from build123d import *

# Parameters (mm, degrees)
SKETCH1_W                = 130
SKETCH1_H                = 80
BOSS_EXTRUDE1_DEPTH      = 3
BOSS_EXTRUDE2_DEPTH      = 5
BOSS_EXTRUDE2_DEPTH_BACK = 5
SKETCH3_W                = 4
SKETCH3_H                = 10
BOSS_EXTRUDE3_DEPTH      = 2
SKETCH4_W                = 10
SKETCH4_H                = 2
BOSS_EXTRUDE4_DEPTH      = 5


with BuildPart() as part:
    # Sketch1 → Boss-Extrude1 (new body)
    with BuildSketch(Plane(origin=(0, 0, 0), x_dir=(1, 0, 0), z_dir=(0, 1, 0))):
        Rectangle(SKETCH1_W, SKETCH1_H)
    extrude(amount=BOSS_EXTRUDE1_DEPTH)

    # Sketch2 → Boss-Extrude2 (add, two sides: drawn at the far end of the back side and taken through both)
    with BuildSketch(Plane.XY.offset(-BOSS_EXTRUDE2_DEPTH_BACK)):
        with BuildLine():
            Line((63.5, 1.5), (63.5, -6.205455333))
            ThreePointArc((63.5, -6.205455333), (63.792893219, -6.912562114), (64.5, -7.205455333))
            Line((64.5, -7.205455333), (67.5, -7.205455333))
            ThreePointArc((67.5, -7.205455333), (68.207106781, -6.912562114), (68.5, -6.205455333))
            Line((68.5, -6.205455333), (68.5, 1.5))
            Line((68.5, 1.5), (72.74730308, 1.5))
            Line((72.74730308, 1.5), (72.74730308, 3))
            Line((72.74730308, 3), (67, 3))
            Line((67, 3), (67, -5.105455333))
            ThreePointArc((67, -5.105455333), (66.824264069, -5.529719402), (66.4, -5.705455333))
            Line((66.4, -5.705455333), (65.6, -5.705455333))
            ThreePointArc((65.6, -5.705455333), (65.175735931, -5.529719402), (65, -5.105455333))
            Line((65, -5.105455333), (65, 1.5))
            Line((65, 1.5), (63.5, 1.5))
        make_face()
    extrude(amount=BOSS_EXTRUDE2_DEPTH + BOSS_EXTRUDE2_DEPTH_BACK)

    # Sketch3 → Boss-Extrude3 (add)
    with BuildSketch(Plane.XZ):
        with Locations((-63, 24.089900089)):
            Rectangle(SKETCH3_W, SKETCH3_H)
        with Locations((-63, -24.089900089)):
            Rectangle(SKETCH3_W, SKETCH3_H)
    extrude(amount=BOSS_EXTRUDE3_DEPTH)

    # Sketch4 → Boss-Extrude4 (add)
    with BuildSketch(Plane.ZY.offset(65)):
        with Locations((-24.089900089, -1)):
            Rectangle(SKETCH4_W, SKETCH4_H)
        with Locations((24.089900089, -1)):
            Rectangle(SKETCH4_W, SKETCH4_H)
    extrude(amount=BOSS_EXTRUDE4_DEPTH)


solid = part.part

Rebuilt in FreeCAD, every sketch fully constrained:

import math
import FreeCAD as App
import Part
import Sketcher


def add_polygon(sketch, points):
    """Adds a closed chain of lines whose ends are joined by coincident constraints."""
    first, n = sketch.GeometryCount, len(points)
    for a, b in zip(points, points[1:] + points[:1]):
        sketch.addGeometry(Part.LineSegment(App.Vector(*a, 0), App.Vector(*b, 0)), False)
    for i in range(n):
        sketch.addConstraint(Sketcher.Constraint("Coincident", first + i, 2, first + (i + 1) % n, 1))

doc = App.newDocument("Part")
params = doc.addObject("Spreadsheet::Sheet", "Params")
for row, (alias, value) in enumerate([
    ("sketch1_width", "130 mm"),
    ("sketch1_height", "80 mm"),
    ("pad1_length", "3 mm"),
    ("sketch2_radius", "1 mm"),
    ("sketch2_radius2", "0.6 mm"),
    ("sketch2_width", "3 mm"),
    ("sketch2_width2", "0.8 mm"),
    ("sketch2_width3", "1.5 mm"),
    ("pad2_length", "5 mm"),
    ("pad2_length2", "5 mm"),
    ("sketch3_width", "4 mm"),
    ("sketch3_height", "10 mm"),
    ("pad3_length", "2 mm"),
    ("sketch4_width", "2 mm"),
    ("sketch4_height", "10 mm"),
    ("pad4_length", "5 mm"),
], start=1):
    params.set(f"A{row}", alias)
    params.set(f"B{row}", "=" + value)
    params.setAlias(f"B{row}", alias)

body = doc.addObject("PartDesign::Body", "Body")

sketch1 = body.newObject("Sketcher::SketchObject", "Sketch")
sketch1.AttachmentSupport = (doc.getObject("XZ_Plane"), [""])
sketch1.MapMode = "FlatFace"
add_polygon(sketch1, [(-65, -40), (-65, 40), (65, 40), (65, -40)])
sketch1.addConstraint([
    Sketcher.Constraint("Vertical", 0),
    Sketcher.Constraint("Horizontal", 1),
    Sketcher.Constraint("Vertical", 2),
    Sketcher.Constraint("Horizontal", 3),
    Sketcher.Constraint("Symmetric", 0, 2, 2, 2, -1, 1),
    Sketcher.Constraint("DistanceX", 1, 1, 1, 2, 130.0),
    Sketcher.Constraint("DistanceY", 0, 1, 0, 2, 80.0),
])
sketch1.setExpression("Constraints[9]", "Params.sketch1_width")
sketch1.setExpression("Constraints[10]", "Params.sketch1_height")
pad1 = body.newObject("PartDesign::Pad", "Pad")
pad1.Profile = sketch1
pad1.setExpression("Length", "Params.pad1_length")
pad1.Reversed = True

sketch2 = body.newObject("Sketcher::SketchObject", "Sketch001")
sketch2.AttachmentSupport = (doc.getObject("XY_Plane"), [""])
sketch2.MapMode = "FlatFace"
sketch2.addGeometry([
    Part.LineSegment(App.Vector(63.5, 1.5, 0), App.Vector(63.5, -6.2, 0)),
    Part.ArcOfCircle(Part.Circle(App.Vector(64.5, -6.2, 0), App.Vector(0, 0, 1), 1), math.radians(-180), math.radians(-90)),
    Part.LineSegment(App.Vector(64.5, -7.2, 0), App.Vector(67.5, -7.2, 0)),
    Part.ArcOfCircle(Part.Circle(App.Vector(67.5, -6.2, 0), App.Vector(0, 0, 1), 1), math.radians(-90), math.radians(0)),
    Part.LineSegment(App.Vector(68.5, -6.2, 0), App.Vector(68.5, 1.5, 0)),
    Part.LineSegment(App.Vector(68.5, 1.5, 0), App.Vector(72.7, 1.5, 0)),
    Part.LineSegment(App.Vector(72.7, 1.5, 0), App.Vector(72.7, 3, 0)),
    Part.LineSegment(App.Vector(72.7, 3, 0), App.Vector(67, 3, 0)),
    Part.LineSegment(App.Vector(67, 3, 0), App.Vector(67, -5.1, 0)),
    Part.ArcOfCircle(Part.Circle(App.Vector(66.4, -5.1, 0), App.Vector(0, 0, 1), 0.6), math.radians(-90), math.radians(0)),
    Part.LineSegment(App.Vector(66.4, -5.7, 0), App.Vector(65.6, -5.7, 0)),
    Part.ArcOfCircle(Part.Circle(App.Vector(65.6, -5.1, 0), App.Vector(0, 0, 1), 0.6), math.radians(180), math.radians(270)),
    Part.LineSegment(App.Vector(65, -5.1, 0), App.Vector(65, 1.5, 0)),
    Part.LineSegment(App.Vector(65, 1.5, 0), App.Vector(63.5, 1.5, 0)),
], False)
sketch2.addConstraint([
    Sketcher.Constraint("Tangent", 0, 2, 1, 1),
    Sketcher.Constraint("Tangent", 1, 2, 2, 1),
    Sketcher.Constraint("Tangent", 2, 2, 3, 1),
    Sketcher.Constraint("Tangent", 3, 2, 4, 1),
    Sketcher.Constraint("Coincident", 4, 2, 5, 1),
    Sketcher.Constraint("Coincident", 5, 2, 6, 1),
    Sketcher.Constraint("Coincident", 6, 2, 7, 1),
    Sketcher.Constraint("Coincident", 7, 2, 8, 1),
    Sketcher.Constraint("Tangent", 8, 2, 9, 2),
    Sketcher.Constraint("Tangent", 9, 1, 10, 1),
    Sketcher.Constraint("Tangent", 10, 2, 11, 2),
    Sketcher.Constraint("Tangent", 11, 1, 12, 1),
    Sketcher.Constraint("Coincident", 12, 2, 13, 1),
    Sketcher.Constraint("Coincident", 13, 2, 0, 1),
    Sketcher.Constraint("Vertical", 0),
    Sketcher.Constraint("Horizontal", 2),
    Sketcher.Constraint("Vertical", 4),
    Sketcher.Constraint("Horizontal", 5),
    Sketcher.Constraint("Vertical", 6),
    Sketcher.Constraint("Horizontal", 7),
    Sketcher.Constraint("Vertical", 8),
    Sketcher.Constraint("Horizontal", 10),
    Sketcher.Constraint("Vertical", 12),
    Sketcher.Constraint("Horizontal", 13),
    Sketcher.Constraint("Equal", 1, 3),
    Sketcher.Constraint("Equal", 9, 11),
    Sketcher.Constraint("Horizontal", 5, 2, 12, 2),
    Sketcher.Constraint("Equal", 13, 6),
    Sketcher.Constraint("Radius", 1, 1.0),
    Sketcher.Constraint("Radius", 9, 0.6),
    Sketcher.Constraint("DistanceX", 2, 1, 2, 2, 3.0),
    Sketcher.Constraint("DistanceX", 10, 2, 10, 1, 0.8),
    Sketcher.Constraint("DistanceX", 13, 2, 13, 1, 1.5),
    Sketcher.Constraint("DistanceY", -1, 1, 6, 2, 3.0),
    Sketcher.Constraint("DistanceX", -1, 1, 7, 2, 67.0),
    Sketcher.Constraint("DistanceY", 3, 3, 9, 3, 1.1),
    Sketcher.Constraint("DistanceX", 5, 1, 5, 2, 4.247303),
    Sketcher.Constraint("DistanceY", 0, 2, 0, 1, 7.705455),
])
sketch2.setExpression("Constraints[28]", "Params.sketch2_radius")
sketch2.setExpression("Constraints[29]", "Params.sketch2_radius2")
sketch2.setExpression("Constraints[30]", "Params.sketch2_width")
sketch2.setExpression("Constraints[31]", "Params.sketch2_width2")
sketch2.setExpression("Constraints[32]", "Params.sketch2_width3")
pad2 = body.newObject("PartDesign::Pad", "Pad001")
pad2.Profile = sketch2
pad2.Type = "TwoLengths"
pad2.setExpression("Length", "Params.pad2_length")
pad2.setExpression("Length2", "Params.pad2_length2")

sketch3 = body.newObject("Sketcher::SketchObject", "Sketch002")
sketch3.AttachmentSupport = (doc.getObject("XZ_Plane"), [""])
sketch3.MapMode = "FlatFace"
add_polygon(sketch3, [(-65, 29.1), (-65, 19.1), (-61, 19.1), (-61, 29.1)])
add_polygon(sketch3, [(-65, -19.1), (-65, -29.1), (-61, -29.1), (-61, -19.1)])
sketch3.addConstraint([
    Sketcher.Constraint("Vertical", 0),
    Sketcher.Constraint("Horizontal", 1),
    Sketcher.Constraint("Vertical", 2),
    Sketcher.Constraint("Horizontal", 3),
    Sketcher.Constraint("Vertical", 4),
    Sketcher.Constraint("Horizontal", 5),
    Sketcher.Constraint("Vertical", 6),
    Sketcher.Constraint("Horizontal", 7),
    Sketcher.Constraint("Symmetric", 3, 2, 4, 2, -1),
    Sketcher.Constraint("Symmetric", 1, 2, 6, 2, -1),
    Sketcher.Constraint("DistanceX", 1, 1, 1, 2, 4.0),
    Sketcher.Constraint("DistanceY", 0, 2, 0, 1, 10.0),
    Sketcher.Constraint("DistanceX", 0, 2, -1, 1, 65.0),
    Sketcher.Constraint("DistanceY", -1, 1, 0, 2, 19.0899),
])
sketch3.setExpression("Constraints[18]", "Params.sketch3_width")
sketch3.setExpression("Constraints[19]", "Params.sketch3_height")
pad3 = body.newObject("PartDesign::Pad", "Pad002")
pad3.Profile = sketch3
pad3.setExpression("Length", "Params.pad3_length")

sketch4 = body.newObject("Sketcher::SketchObject", "Sketch003")
sketch4.AttachmentSupport = (doc.getObject("YZ_Plane"), [""])
sketch4.MapMode = "FlatFace"
sketch4.AttachmentOffset = App.Placement(App.Vector(0, 0, -65), App.Rotation())
add_polygon(sketch4, [(0, -29.1), (-2, -29.1), (-2, -19.1), (0, -19.1)])
add_polygon(sketch4, [(0, 19.1), (-2, 19.1), (-2, 29.1), (0, 29.1)])
sketch4.addConstraint([
    Sketcher.Constraint("Horizontal", 0),
    Sketcher.Constraint("Vertical", 1),
    Sketcher.Constraint("Horizontal", 2),
    Sketcher.Constraint("Vertical", 3),
    Sketcher.Constraint("Horizontal", 4),
    Sketcher.Constraint("Vertical", 5),
    Sketcher.Constraint("Horizontal", 6),
    Sketcher.Constraint("Vertical", 7),
    Sketcher.Constraint("Symmetric", 3, 2, 6, 2, -1, 1),
    Sketcher.Constraint("Symmetric", 1, 2, 4, 2, -1),
    Sketcher.Constraint("PointOnObject", 2, 2, -2),
    Sketcher.Constraint("DistanceX", 0, 2, 0, 1, 2.0),
    Sketcher.Constraint("DistanceY", 1, 1, 1, 2, 10.0),
    Sketcher.Constraint("DistanceY", 0, 2, -1, 1, 29.0899),
])
sketch4.setExpression("Constraints[19]", "Params.sketch4_width")
sketch4.setExpression("Constraints[20]", "Params.sketch4_height")
pad4 = body.newObject("PartDesign::Pad", "Pad003")
pad4.Profile = sketch4
pad4.setExpression("Length", "Params.pad4_length")
pad4.Reversed = True

doc.recompute()
